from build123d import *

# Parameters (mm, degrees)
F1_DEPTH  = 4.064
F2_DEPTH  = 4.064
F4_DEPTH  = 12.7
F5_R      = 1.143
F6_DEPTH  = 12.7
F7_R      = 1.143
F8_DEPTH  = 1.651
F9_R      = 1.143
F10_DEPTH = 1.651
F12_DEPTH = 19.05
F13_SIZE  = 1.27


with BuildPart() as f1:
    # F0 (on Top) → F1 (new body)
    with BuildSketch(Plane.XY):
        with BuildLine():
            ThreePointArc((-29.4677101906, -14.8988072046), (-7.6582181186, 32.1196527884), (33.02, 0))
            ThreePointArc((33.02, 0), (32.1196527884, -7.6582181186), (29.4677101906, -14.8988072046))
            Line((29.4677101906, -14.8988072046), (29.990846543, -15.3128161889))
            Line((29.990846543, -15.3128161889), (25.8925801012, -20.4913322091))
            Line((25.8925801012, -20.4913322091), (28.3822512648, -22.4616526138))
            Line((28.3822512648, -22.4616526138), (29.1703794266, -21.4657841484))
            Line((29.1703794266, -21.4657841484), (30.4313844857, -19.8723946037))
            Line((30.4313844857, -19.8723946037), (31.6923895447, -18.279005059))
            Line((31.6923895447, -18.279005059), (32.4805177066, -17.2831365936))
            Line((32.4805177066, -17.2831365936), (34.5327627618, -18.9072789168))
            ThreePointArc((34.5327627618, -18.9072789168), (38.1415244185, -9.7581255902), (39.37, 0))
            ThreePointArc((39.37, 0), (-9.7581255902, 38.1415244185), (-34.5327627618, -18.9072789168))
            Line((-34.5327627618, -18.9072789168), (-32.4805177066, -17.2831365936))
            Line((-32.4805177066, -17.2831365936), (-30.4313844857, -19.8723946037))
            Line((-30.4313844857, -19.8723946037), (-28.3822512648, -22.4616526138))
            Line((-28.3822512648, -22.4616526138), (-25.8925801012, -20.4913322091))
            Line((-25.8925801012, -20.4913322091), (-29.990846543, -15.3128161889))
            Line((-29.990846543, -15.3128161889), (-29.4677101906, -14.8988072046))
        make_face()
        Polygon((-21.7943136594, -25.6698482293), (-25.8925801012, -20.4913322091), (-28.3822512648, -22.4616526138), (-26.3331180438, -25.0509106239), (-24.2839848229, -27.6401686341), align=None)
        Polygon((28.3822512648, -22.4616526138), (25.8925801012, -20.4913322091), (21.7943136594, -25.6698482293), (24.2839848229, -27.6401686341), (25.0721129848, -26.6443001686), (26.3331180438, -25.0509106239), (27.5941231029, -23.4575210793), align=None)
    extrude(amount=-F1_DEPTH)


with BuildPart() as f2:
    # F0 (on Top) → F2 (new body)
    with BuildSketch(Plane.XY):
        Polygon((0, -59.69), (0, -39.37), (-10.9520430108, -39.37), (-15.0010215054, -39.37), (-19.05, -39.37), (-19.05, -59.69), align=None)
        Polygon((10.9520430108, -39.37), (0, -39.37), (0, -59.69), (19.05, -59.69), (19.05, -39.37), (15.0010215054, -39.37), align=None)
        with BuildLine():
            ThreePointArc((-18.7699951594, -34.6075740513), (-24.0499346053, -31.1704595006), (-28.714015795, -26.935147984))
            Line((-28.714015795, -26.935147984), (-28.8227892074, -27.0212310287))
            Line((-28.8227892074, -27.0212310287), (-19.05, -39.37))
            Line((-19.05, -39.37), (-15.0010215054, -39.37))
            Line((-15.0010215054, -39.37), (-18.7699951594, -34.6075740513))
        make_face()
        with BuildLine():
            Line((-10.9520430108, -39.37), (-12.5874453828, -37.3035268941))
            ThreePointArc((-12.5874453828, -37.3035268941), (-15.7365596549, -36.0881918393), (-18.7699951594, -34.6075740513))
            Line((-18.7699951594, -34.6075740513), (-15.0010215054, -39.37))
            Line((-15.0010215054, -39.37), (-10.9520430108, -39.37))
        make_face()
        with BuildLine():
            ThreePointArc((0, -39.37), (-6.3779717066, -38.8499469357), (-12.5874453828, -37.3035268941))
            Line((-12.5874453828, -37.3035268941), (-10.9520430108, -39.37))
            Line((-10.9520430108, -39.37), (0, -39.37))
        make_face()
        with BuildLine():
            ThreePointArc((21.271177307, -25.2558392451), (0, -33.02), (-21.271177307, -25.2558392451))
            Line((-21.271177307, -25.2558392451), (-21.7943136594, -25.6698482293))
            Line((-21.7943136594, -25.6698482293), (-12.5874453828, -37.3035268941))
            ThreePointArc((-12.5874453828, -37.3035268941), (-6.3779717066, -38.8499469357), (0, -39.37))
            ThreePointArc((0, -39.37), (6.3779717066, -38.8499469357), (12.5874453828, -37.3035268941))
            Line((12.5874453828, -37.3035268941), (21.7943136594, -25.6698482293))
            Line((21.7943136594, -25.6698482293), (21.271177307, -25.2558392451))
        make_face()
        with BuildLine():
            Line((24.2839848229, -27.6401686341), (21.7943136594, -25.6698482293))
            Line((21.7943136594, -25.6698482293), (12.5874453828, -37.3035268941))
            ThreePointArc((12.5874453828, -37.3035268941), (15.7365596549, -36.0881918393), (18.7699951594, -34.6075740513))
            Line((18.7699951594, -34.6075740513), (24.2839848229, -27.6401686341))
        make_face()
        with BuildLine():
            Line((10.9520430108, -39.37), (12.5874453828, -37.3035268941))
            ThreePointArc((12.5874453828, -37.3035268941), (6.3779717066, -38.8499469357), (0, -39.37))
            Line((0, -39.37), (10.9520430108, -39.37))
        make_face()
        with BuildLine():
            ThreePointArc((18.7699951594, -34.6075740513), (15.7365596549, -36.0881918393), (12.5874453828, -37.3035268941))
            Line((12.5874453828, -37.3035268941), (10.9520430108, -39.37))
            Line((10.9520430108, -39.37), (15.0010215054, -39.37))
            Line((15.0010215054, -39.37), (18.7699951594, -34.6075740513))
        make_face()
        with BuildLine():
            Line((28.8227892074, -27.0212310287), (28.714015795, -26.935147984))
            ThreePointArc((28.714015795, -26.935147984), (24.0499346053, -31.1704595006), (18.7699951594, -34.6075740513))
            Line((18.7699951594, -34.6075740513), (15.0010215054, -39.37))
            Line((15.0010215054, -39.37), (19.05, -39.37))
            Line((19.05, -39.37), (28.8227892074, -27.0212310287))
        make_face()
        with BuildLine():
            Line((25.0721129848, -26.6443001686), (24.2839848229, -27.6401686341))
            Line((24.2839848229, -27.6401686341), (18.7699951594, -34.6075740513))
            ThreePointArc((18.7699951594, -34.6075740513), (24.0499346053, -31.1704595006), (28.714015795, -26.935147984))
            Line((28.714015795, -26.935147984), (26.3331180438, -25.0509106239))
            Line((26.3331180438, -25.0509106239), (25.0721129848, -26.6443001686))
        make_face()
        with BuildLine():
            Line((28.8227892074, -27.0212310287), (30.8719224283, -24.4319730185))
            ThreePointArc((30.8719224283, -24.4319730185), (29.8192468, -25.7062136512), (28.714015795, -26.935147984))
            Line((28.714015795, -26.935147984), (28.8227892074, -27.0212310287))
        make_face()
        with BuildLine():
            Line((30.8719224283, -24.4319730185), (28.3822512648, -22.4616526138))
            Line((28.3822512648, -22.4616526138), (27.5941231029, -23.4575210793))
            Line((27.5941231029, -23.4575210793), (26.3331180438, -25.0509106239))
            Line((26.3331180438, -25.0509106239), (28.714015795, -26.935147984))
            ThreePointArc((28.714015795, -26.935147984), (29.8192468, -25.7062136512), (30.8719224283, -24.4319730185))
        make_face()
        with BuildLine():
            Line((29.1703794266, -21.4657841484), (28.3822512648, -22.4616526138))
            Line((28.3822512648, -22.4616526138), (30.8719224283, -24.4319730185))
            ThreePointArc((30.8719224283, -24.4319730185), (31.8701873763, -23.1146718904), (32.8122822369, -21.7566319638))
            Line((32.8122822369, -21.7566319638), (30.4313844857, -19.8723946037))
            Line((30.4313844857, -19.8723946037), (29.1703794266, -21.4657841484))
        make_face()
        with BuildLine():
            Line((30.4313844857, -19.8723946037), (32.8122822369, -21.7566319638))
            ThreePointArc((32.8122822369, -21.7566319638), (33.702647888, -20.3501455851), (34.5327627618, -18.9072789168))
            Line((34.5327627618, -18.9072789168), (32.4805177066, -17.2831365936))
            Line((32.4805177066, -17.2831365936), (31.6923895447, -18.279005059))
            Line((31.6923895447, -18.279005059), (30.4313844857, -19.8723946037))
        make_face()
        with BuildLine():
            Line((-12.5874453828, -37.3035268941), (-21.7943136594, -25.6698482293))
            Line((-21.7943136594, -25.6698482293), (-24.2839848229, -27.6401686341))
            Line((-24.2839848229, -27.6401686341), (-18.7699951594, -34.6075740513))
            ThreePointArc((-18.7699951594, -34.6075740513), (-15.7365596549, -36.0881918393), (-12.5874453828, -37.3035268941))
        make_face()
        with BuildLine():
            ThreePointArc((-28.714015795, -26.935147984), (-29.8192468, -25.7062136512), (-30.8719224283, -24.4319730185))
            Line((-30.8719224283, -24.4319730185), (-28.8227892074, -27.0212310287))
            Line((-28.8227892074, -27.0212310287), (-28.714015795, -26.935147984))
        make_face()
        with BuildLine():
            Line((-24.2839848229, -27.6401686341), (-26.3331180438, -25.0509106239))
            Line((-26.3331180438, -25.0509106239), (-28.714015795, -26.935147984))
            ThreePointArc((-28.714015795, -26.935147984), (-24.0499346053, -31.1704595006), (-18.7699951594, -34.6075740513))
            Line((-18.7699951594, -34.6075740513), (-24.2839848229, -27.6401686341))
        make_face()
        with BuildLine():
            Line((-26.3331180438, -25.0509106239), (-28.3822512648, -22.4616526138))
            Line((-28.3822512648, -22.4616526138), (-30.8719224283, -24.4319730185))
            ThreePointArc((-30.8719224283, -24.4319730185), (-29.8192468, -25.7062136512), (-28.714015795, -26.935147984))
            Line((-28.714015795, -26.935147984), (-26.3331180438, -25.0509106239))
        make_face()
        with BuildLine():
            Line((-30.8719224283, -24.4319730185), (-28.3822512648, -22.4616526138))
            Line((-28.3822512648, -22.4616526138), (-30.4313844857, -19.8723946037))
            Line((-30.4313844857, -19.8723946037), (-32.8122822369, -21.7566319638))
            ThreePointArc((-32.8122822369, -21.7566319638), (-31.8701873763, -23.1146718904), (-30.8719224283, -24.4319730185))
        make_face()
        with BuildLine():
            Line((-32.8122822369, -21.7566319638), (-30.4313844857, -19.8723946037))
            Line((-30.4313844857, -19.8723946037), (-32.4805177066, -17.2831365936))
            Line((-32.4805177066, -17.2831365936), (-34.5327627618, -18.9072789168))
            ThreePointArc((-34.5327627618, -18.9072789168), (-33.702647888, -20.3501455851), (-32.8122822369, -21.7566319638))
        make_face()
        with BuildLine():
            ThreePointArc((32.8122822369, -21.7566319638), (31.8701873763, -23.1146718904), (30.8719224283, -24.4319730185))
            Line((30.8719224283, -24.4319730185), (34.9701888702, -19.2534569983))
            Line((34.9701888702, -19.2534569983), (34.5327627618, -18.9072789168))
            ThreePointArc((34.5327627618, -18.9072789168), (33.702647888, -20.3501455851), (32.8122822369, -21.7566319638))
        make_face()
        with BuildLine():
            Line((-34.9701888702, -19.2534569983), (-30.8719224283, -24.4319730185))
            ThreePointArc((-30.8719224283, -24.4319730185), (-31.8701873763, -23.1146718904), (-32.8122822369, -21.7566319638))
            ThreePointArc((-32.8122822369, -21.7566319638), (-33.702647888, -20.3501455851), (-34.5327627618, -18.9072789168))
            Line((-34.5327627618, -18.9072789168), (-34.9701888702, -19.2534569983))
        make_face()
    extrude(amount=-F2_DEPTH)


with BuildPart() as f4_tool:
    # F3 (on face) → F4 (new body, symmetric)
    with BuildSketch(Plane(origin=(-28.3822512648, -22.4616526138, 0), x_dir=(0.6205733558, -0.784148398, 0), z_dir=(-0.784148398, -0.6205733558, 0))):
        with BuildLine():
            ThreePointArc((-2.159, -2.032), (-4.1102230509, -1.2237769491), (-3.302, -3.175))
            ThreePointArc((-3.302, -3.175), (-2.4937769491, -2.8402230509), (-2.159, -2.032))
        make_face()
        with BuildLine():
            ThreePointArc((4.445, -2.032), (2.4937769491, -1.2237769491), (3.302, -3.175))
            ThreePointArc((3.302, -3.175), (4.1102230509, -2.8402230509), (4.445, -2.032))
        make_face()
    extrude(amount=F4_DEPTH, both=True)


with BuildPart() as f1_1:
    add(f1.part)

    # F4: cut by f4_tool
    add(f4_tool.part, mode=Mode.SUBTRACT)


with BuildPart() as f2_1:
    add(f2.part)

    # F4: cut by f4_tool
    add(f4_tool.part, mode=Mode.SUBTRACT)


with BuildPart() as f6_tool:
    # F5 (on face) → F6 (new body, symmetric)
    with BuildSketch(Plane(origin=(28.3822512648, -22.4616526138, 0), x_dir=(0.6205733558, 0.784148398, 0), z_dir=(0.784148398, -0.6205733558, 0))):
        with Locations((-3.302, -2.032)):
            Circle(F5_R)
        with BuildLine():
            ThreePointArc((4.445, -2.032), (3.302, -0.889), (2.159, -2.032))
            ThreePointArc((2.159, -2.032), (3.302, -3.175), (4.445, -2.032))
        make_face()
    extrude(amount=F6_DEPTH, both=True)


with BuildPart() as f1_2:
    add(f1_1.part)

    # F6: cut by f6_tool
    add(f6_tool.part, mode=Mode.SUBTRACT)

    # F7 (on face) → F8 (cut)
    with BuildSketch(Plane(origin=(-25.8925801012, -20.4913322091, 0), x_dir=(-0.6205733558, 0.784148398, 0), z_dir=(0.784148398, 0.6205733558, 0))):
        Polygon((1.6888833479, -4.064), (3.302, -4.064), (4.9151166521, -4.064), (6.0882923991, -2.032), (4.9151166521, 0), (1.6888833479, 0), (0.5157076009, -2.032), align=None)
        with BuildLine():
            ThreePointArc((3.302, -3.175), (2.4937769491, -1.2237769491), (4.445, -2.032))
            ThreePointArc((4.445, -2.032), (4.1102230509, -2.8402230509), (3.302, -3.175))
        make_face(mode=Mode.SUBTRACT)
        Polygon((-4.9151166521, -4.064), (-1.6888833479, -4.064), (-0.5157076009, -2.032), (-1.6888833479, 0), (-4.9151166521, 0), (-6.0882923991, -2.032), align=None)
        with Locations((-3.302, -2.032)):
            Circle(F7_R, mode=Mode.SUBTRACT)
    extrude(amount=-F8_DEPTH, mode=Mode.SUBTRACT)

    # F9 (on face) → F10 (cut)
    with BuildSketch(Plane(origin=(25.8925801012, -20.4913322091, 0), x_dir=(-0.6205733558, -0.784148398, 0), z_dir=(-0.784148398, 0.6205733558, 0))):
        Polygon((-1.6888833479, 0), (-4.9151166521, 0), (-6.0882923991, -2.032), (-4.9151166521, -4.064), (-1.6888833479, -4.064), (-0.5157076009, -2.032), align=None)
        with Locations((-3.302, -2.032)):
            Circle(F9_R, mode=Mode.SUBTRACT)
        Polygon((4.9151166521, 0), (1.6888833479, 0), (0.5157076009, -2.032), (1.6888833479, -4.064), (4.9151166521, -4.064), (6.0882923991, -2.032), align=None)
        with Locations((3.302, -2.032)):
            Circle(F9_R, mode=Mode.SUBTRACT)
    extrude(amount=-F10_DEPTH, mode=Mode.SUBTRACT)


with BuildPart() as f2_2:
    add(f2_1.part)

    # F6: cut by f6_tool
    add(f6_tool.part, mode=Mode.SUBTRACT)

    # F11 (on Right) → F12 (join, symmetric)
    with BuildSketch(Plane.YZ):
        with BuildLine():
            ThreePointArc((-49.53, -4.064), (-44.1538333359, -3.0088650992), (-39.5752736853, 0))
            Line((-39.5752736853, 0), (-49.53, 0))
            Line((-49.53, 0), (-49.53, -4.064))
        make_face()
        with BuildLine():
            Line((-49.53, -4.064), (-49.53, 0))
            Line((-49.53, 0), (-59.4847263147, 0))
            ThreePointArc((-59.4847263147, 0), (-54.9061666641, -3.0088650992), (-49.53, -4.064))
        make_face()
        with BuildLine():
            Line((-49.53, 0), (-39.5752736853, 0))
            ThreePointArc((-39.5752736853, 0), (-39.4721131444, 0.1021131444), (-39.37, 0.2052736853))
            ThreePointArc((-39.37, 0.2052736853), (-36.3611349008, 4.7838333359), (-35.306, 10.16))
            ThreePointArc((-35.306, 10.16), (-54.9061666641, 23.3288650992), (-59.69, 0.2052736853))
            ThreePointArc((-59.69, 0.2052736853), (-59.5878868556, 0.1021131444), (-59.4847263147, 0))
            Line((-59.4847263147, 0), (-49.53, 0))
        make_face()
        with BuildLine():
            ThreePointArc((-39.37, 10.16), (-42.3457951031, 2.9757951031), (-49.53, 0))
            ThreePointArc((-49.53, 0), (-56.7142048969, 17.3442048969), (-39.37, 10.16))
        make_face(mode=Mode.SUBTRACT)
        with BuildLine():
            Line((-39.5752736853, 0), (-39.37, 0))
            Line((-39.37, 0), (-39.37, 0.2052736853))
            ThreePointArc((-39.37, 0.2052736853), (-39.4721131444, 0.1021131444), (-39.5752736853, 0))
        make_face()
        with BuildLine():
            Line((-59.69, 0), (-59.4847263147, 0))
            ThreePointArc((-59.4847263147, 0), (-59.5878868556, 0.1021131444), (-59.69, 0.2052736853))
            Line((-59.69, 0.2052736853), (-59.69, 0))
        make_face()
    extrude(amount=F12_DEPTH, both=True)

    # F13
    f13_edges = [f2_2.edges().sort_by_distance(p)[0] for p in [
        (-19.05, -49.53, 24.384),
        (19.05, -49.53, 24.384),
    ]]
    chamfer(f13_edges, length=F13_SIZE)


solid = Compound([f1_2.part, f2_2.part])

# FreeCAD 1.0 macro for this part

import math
import FreeCAD as App
import Part
import Sketcher
from FreeCAD import Vector
Q = App.Units.Quantity


def edges_at(feature, points):
    """Names of the edges that pass closest to the given points."""
    edges = feature.Shape.Edges
    near = lambda p: min(range(len(edges)), key=lambda i: edges[i].distToShape(Part.Vertex(*p))[0])
    return sorted({f"Edge{near(p) + 1}" for p in points})

doc = App.newDocument("Part")
body = doc.addObject("PartDesign::Body", "Body")

# Sketch on XY plane
sketch1 = body.newObject("Sketcher::SketchObject", "Sketch")
sketch1.AttachmentSupport = (doc.getObject("XY_Plane"), [""])
sketch1.MapMode = "FlatFace"
sketch1.addGeometry(Part.LineSegment(Vector(-30, -15.3, 0), Vector(-29.5, -14.9, 0)), False)
sketch1.addGeometry(Part.ArcOfCircle(Part.Circle(Vector(0, 0, 0), Vector(0, 0, 1), 33), math.radians(0), math.radians(207)), False)
sketch1.addGeometry(Part.ArcOfCircle(Part.Circle(Vector(0, 0, 0), Vector(0, 0, 1), 33), math.radians(-27), math.radians(0)), False)
sketch1.addGeometry(Part.LineSegment(Vector(29.5, -14.9, 0), Vector(30, -15.3, 0)), False)
sketch1.addGeometry(Part.LineSegment(Vector(30, -15.3, 0), Vector(21.8, -25.7, 0)), False)
sketch1.addGeometry(Part.LineSegment(Vector(21.8, -25.7, 0), Vector(24.3, -27.6, 0)), False)
sketch1.addGeometry(Part.LineSegment(Vector(24.3, -27.6, 0), Vector(25.1, -26.6, 0)), False)
sketch1.addGeometry(Part.LineSegment(Vector(25.1, -26.6, 0), Vector(26.3, -25.1, 0)), False)
sketch1.addGeometry(Part.LineSegment(Vector(26.3, -25.1, 0), Vector(27.6, -23.5, 0)), False)
sketch1.addGeometry(Part.LineSegment(Vector(27.6, -23.5, 0), Vector(28.4, -22.5, 0)), False)
sketch1.addGeometry(Part.LineSegment(Vector(28.4, -22.5, 0), Vector(29.2, -21.5, 0)), False)
sketch1.addGeometry(Part.LineSegment(Vector(29.2, -21.5, 0), Vector(30.4, -19.9, 0)), False)
sketch1.addGeometry(Part.LineSegment(Vector(30.4, -19.9, 0), Vector(31.7, -18.3, 0)), False)
sketch1.addGeometry(Part.LineSegment(Vector(31.7, -18.3, 0), Vector(32.5, -17.3, 0)), False)
sketch1.addGeometry(Part.LineSegment(Vector(32.5, -17.3, 0), Vector(34.5, -18.9, 0)), False)
sketch1.addGeometry(Part.ArcOfCircle(Part.Circle(Vector(0, 0, 0), Vector(0, 0, 1), 39.4), math.radians(-29), math.radians(0)), False)
sketch1.addGeometry(Part.ArcOfCircle(Part.Circle(Vector(0, 0, 0), Vector(0, 0, 1), 39.4), math.radians(0), math.radians(209)), False)
sketch1.addGeometry(Part.LineSegment(Vector(-34.5, -18.9, 0), Vector(-32.5, -17.3, 0)), False)
sketch1.addGeometry(Part.LineSegment(Vector(-32.5, -17.3, 0), Vector(-28.4, -22.5, 0)), False)
sketch1.addGeometry(Part.LineSegment(Vector(-28.4, -22.5, 0), Vector(-26.3, -25.1, 0)), False)
sketch1.addGeometry(Part.LineSegment(Vector(-26.3, -25.1, 0), Vector(-24.3, -27.6, 0)), False)
sketch1.addGeometry(Part.LineSegment(Vector(-24.3, -27.6, 0), Vector(-21.8, -25.7, 0)), False)
sketch1.addGeometry(Part.LineSegment(Vector(-21.8, -25.7, 0), Vector(-30, -15.3, 0)), False)
sketch1.addConstraint(Sketcher.Constraint("Coincident", 0, 2, 1, 2))
sketch1.addConstraint(Sketcher.Constraint("Tangent", 1, 1, 2, 2))
sketch1.addConstraint(Sketcher.Constraint("Coincident", 2, 1, 3, 1))
sketch1.addConstraint(Sketcher.Constraint("Coincident", 3, 2, 4, 1))
sketch1.addConstraint(Sketcher.Constraint("Coincident", 4, 2, 5, 1))
sketch1.addConstraint(Sketcher.Constraint("Coincident", 5, 2, 6, 1))
sketch1.addConstraint(Sketcher.Constraint("Coincident", 6, 2, 7, 1))
sketch1.addConstraint(Sketcher.Constraint("Coincident", 7, 2, 8, 1))
sketch1.addConstraint(Sketcher.Constraint("Coincident", 8, 2, 9, 1))
sketch1.addConstraint(Sketcher.Constraint("Coincident", 9, 2, 10, 1))
sketch1.addConstraint(Sketcher.Constraint("Coincident", 10, 2, 11, 1))
sketch1.addConstraint(Sketcher.Constraint("Coincident", 11, 2, 12, 1))
sketch1.addConstraint(Sketcher.Constraint("Coincident", 12, 2, 13, 1))
sketch1.addConstraint(Sketcher.Constraint("Coincident", 13, 2, 14, 1))
sketch1.addConstraint(Sketcher.Constraint("Coincident", 14, 2, 15, 1))
sketch1.addConstraint(Sketcher.Constraint("Tangent", 15, 2, 16, 1))
sketch1.addConstraint(Sketcher.Constraint("Coincident", 16, 2, 17, 1))
sketch1.addConstraint(Sketcher.Constraint("Coincident", 17, 2, 18, 1))
sketch1.addConstraint(Sketcher.Constraint("Coincident", 18, 2, 19, 1))
sketch1.addConstraint(Sketcher.Constraint("Coincident", 19, 2, 20, 1))
sketch1.addConstraint(Sketcher.Constraint("Coincident", 20, 2, 21, 1))
sketch1.addConstraint(Sketcher.Constraint("Coincident", 21, 2, 22, 1))
sketch1.addConstraint(Sketcher.Constraint("Coincident", 22, 2, 0, 1))
sketch1.addConstraint(Sketcher.Constraint("Coincident", 1, 3, -1, 1))
sketch1.addConstraint(Sketcher.Constraint("Coincident", 15, 3, -1, 1))
sketch1.addConstraint(Sketcher.Constraint("Equal", 1, 2))
sketch1.addConstraint(Sketcher.Constraint("Equal", 15, 16))
sketch1.addConstraint(Sketcher.Constraint("Symmetric", 13, 2, 17, 2, -2))
sketch1.addConstraint(Sketcher.Constraint("Symmetric", 9, 2, 18, 2, -2))
sketch1.addConstraint(Sketcher.Constraint("Symmetric", 7, 2, 19, 2, -2))
sketch1.addConstraint(Sketcher.Constraint("Symmetric", 5, 2, 20, 2, -2))
sketch1.addConstraint(Sketcher.Constraint("Symmetric", 4, 2, 21, 2, -2))
sketch1.addConstraint(Sketcher.Constraint("Symmetric", 3, 2, 22, 2, -2))
sketch1.addConstraint(Sketcher.Constraint("PointOnObject", 1, 1, -1))
sketch1.addConstraint(Sketcher.Constraint("PointOnObject", 15, 2, -1))
sketch1.addConstraint(Sketcher.Constraint("Perpendicular", 3, 4))
sketch1.addConstraint(Sketcher.Constraint("Perpendicular", 4, 5))
sketch1.addConstraint(Sketcher.Constraint("Perpendicular", 5, 6))
sketch1.addConstraint(Sketcher.Constraint("Parallel", 6, 7))
sketch1.addConstraint(Sketcher.Constraint("Parallel", 7, 8))
sketch1.addConstraint(Sketcher.Constraint("Parallel", 8, 9))
sketch1.addConstraint(Sketcher.Constraint("Parallel", 9, 10))
sketch1.addConstraint(Sketcher.Constraint("Parallel", 10, 11))
sketch1.addConstraint(Sketcher.Constraint("Parallel", 11, 12))
sketch1.addConstraint(Sketcher.Constraint("Parallel", 12, 13))
sketch1.addConstraint(Sketcher.Constraint("Perpendicular", 13, 14))
sketch1.addConstraint(Sketcher.Constraint("Parallel", 0, 17))
sketch1.addConstraint(Sketcher.Constraint("Perpendicular", 17, 18))
sketch1.addConstraint(Sketcher.Constraint("Equal", 7, 8))
sketch1.addConstraint(Sketcher.Constraint("Equal", 6, 9))
sketch1.addConstraint(Sketcher.Constraint("Equal", 9, 10))
sketch1.addConstraint(Sketcher.Constraint("Equal", 8, 11))
sketch1.addConstraint(Sketcher.Constraint("Equal", 11, 12))
sketch1.addConstraint(Sketcher.Constraint("Equal", 10, 13))
sketch1.addConstraint(Sketcher.Constraint("Radius", 1, Q("1.3 in")))
sketch1.addConstraint(Sketcher.Constraint("Radius", 15, Q("1.55 in")))
sketch1.addConstraint(Sketcher.Constraint("Distance", 4, Q("0.52 in")))
sketch1.addConstraint(Sketcher.Constraint("Distance", 6, Q("0.05 in")))
sketch1.addConstraint(Sketcher.Constraint("Distance", 7, Q("0.08 in")))
sketch1.addConstraint(Sketcher.Constraint("Distance", 5, Q("0.125 in")))
sketch1.addConstraint(Sketcher.Constraint("DistanceY", 6, 2, -1, 1, Q("26.6443 mm")))
sketch1.addConstraint(Sketcher.Constraint("DistanceX", 4, 2, 6, 2, Q("3.277799 mm")))
sketch1.addConstraint(Sketcher.Constraint("Distance", 0, Q("0.667139 mm")))
pad1 = body.newObject("PartDesign::Pad", "Pad")
pad1.Profile = sketch1
pad1.Length = Q("0.16 in")
pad1.Reversed = True
body2 = doc.addObject("PartDesign::Body", "Body001")

# Sketch on XY plane
sketch2 = body2.newObject("Sketcher::SketchObject", "Sketch001")
sketch2.AttachmentSupport = (doc.getObject("XY_Plane001"), [""])
sketch2.MapMode = "FlatFace"
sketch2.addGeometry(Part.LineSegment(Vector(-28.8, -27, 0), Vector(-19.1, -39.4, 0)), False)
sketch2.addGeometry(Part.LineSegment(Vector(-19.1, -39.4, 0), Vector(-19.1, -59.7, 0)), False)
sketch2.addGeometry(Part.LineSegment(Vector(-19.1, -59.7, 0), Vector(19.1, -59.7, 0)), False)
sketch2.addGeometry(Part.LineSegment(Vector(19.1, -59.7, 0), Vector(19.1, -39.4, 0)), False)
sketch2.addGeometry(Part.LineSegment(Vector(19.1, -39.4, 0), Vector(28.8, -27, 0)), False)
sketch2.addGeometry(Part.LineSegment(Vector(28.8, -27, 0), Vector(30.9, -24.4, 0)), False)
sketch2.addGeometry(Part.LineSegment(Vector(30.9, -24.4, 0), Vector(35, -19.3, 0)), False)
sketch2.addGeometry(Part.LineSegment(Vector(35, -19.3, 0), Vector(34.5, -18.9, 0)), False)
sketch2.addGeometry(Part.LineSegment(Vector(34.5, -18.9, 0), Vector(32.5, -17.3, 0)), False)
sketch2.addGeometry(Part.LineSegment(Vector(32.5, -17.3, 0), Vector(31.7, -18.3, 0)), False)
sketch2.addGeometry(Part.LineSegment(Vector(31.7, -18.3, 0), Vector(30.4, -19.9, 0)), False)
sketch2.addGeometry(Part.LineSegment(Vector(30.4, -19.9, 0), Vector(29.2, -21.5, 0)), False)
sketch2.addGeometry(Part.LineSegment(Vector(29.2, -21.5, 0), Vector(28.4, -22.5, 0)), False)
sketch2.addGeometry(Part.LineSegment(Vector(28.4, -22.5, 0), Vector(27.6, -23.5, 0)), False)
sketch2.addGeometry(Part.LineSegment(Vector(27.6, -23.5, 0), Vector(26.3, -25.1, 0)), False)
sketch2.addGeometry(Part.LineSegment(Vector(26.3, -25.1, 0), Vector(25.1, -26.6, 0)), False)
sketch2.addGeometry(Part.LineSegment(Vector(25.1, -26.6, 0), Vector(24.3, -27.6, 0)), False)
sketch2.addGeometry(Part.LineSegment(Vector(24.3, -27.6, 0), Vector(21.8, -25.7, 0)), False)
sketch2.addGeometry(Part.LineSegment(Vector(21.8, -25.7, 0), Vector(21.3, -25.3, 0)), False)
sketch2.addGeometry(Part.ArcOfCircle(Part.Circle(Vector(0, 0, 0), Vector(0, 0, 1), 33), math.radians(-130), math.radians(-50)), False)
sketch2.addGeometry(Part.LineSegment(Vector(-21.3, -25.3, 0), Vector(-21.8, -25.7, 0)), False)
sketch2.addGeometry(Part.LineSegment(Vector(-21.8, -25.7, 0), Vector(-24.3, -27.6, 0)), False)
sketch2.addGeometry(Part.LineSegment(Vector(-24.3, -27.6, 0), Vector(-26.3, -25.1, 0)), False)
sketch2.addGeometry(Part.LineSegment(Vector(-26.3, -25.1, 0), Vector(-28.4, -22.5, 0)), False)
sketch2.addGeometry(Part.LineSegment(Vector(-28.4, -22.5, 0), Vector(-32.5, -17.3, 0)), False)
sketch2.addGeometry(Part.LineSegment(Vector(-32.5, -17.3, 0), Vector(-34.5, -18.9, 0)), False)
sketch2.addGeometry(Part.LineSegment(Vector(-34.5, -18.9, 0), Vector(-35, -19.3, 0)), False)
sketch2.addGeometry(Part.LineSegment(Vector(-35, -19.3, 0), Vector(-30.9, -24.4, 0)), False)
sketch2.addGeometry(Part.LineSegment(Vector(-30.9, -24.4, 0), Vector(-28.8, -27, 0)), False)
sketch2.addConstraint(Sketcher.Constraint("Coincident", 0, 2, 1, 1))
sketch2.addConstraint(Sketcher.Constraint("Coincident", 1, 2, 2, 1))
sketch2.addConstraint(Sketcher.Constraint("Coincident", 2, 2, 3, 1))
sketch2.addConstraint(Sketcher.Constraint("Coincident", 3, 2, 4, 1))
sketch2.addConstraint(Sketcher.Constraint("Coincident", 4, 2, 5, 1))
sketch2.addConstraint(Sketcher.Constraint("Coincident", 5, 2, 6, 1))
sketch2.addConstraint(Sketcher.Constraint("Coincident", 6, 2, 7, 1))
sketch2.addConstraint(Sketcher.Constraint("Coincident", 7, 2, 8, 1))
sketch2.addConstraint(Sketcher.Constraint("Coincident", 8, 2, 9, 1))
sketch2.addConstraint(Sketcher.Constraint("Coincident", 9, 2, 10, 1))
sketch2.addConstraint(Sketcher.Constraint("Coincident", 10, 2, 11, 1))
sketch2.addConstraint(Sketcher.Constraint("Coincident", 11, 2, 12, 1))
sketch2.addConstraint(Sketcher.Constraint("Coincident", 12, 2, 13, 1))
sketch2.addConstraint(Sketcher.Constraint("Coincident", 13, 2, 14, 1))
sketch2.addConstraint(Sketcher.Constraint("Coincident", 14, 2, 15, 1))
sketch2.addConstraint(Sketcher.Constraint("Coincident", 15, 2, 16, 1))
sketch2.addConstraint(Sketcher.Constraint("Coincident", 16, 2, 17, 1))
sketch2.addConstraint(Sketcher.Constraint("Coincident", 17, 2, 18, 1))
sketch2.addConstraint(Sketcher.Constraint("Coincident", 18, 2, 19, 2))
sketch2.addConstraint(Sketcher.Constraint("Coincident", 19, 1, 20, 1))
sketch2.addConstraint(Sketcher.Constraint("Coincident", 20, 2, 21, 1))
sketch2.addConstraint(Sketcher.Constraint("Coincident", 21, 2, 22, 1))
sketch2.addConstraint(Sketcher.Constraint("Coincident", 22, 2, 23, 1))
sketch2.addConstraint(Sketcher.Constraint("Coincident", 23, 2, 24, 1))
sketch2.addConstraint(Sketcher.Constraint("Coincident", 24, 2, 25, 1))
sketch2.addConstraint(Sketcher.Constraint("Coincident", 25, 2, 26, 1))
sketch2.addConstraint(Sketcher.Constraint("Coincident", 26, 2, 27, 1))
sketch2.addConstraint(Sketcher.Constraint("Coincident", 27, 2, 28, 1))
sketch2.addConstraint(Sketcher.Constraint("Coincident", 28, 2, 0, 1))
sketch2.addConstraint(Sketcher.Constraint("Vertical", 1))
sketch2.addConstraint(Sketcher.Constraint("Horizontal", 2))
sketch2.addConstraint(Sketcher.Constraint("Vertical", 3))
sketch2.addConstraint(Sketcher.Constraint("Coincident", 19, 3, -1, 1))
sketch2.addConstraint(Sketcher.Constraint("Symmetric", 0, 2, 3, 2, -2))
sketch2.addConstraint(Sketcher.Constraint("Symmetric", 17, 2, 20, 2, -2))
sketch2.addConstraint(Sketcher.Constraint("Symmetric", 16, 2, 21, 2, -2))
sketch2.addConstraint(Sketcher.Constraint("Symmetric", 14, 2, 22, 2, -2))
sketch2.addConstraint(Sketcher.Constraint("Symmetric", 12, 2, 23, 2, -2))
sketch2.addConstraint(Sketcher.Constraint("Symmetric", 8, 2, 24, 2, -2))
sketch2.addConstraint(Sketcher.Constraint("Symmetric", 7, 2, 25, 2, -2))
sketch2.addConstraint(Sketcher.Constraint("Symmetric", 6, 2, 26, 2, -2))
sketch2.addConstraint(Sketcher.Constraint("Symmetric", 5, 2, 27, 2, -2))
sketch2.addConstraint(Sketcher.Constraint("Symmetric", 4, 2, 28, 2, -2))
sketch2.addConstraint(Sketcher.Constraint("Parallel", 4, 5))
sketch2.addConstraint(Sketcher.Constraint("Parallel", 5, 6))
sketch2.addConstraint(Sketcher.Constraint("Perpendicular", 6, 7))
sketch2.addConstraint(Sketcher.Constraint("Parallel", 7, 8))
sketch2.addConstraint(Sketcher.Constraint("Perpendicular", 8, 9))
sketch2.addConstraint(Sketcher.Constraint("Parallel", 9, 10))
sketch2.addConstraint(Sketcher.Constraint("Parallel", 10, 11))
sketch2.addConstraint(Sketcher.Constraint("Parallel", 11, 12))
sketch2.addConstraint(Sketcher.Constraint("Parallel", 12, 13))
sketch2.addConstraint(Sketcher.Constraint("Parallel", 13, 14))
sketch2.addConstraint(Sketcher.Constraint("Parallel", 14, 15))
sketch2.addConstraint(Sketcher.Constraint("Parallel", 15, 16))
sketch2.addConstraint(Sketcher.Constraint("Perpendicular", 16, 17))
sketch2.addConstraint(Sketcher.Constraint("Parallel", 17, 18))
sketch2.addConstraint(Sketcher.Constraint("Perpendicular", 0, 20))
sketch2.addConstraint(Sketcher.Constraint("Equal", 10, 11))
sketch2.addConstraint(Sketcher.Constraint("Equal", 9, 12))
sketch2.addConstraint(Sketcher.Constraint("Equal", 12, 13))
sketch2.addConstraint(Sketcher.Constraint("Equal", 11, 14))
sketch2.addConstraint(Sketcher.Constraint("Equal", 14, 15))
sketch2.addConstraint(Sketcher.Constraint("Equal", 13, 16))
sketch2.addConstraint(Sketcher.Constraint("Equal", 5, 22))
sketch2.addConstraint(Sketcher.Constraint("Equal", 6, 24))
sketch2.addConstraint(Sketcher.Constraint("Radius", 19, Q("1.3 in")))
sketch2.addConstraint(Sketcher.Constraint("DistanceX", 2, 1, 2, 2, Q("1.5 in")))
sketch2.addConstraint(Sketcher.Constraint("DistanceY", 1, 2, 1, 1, Q("0.8 in")))
sketch2.addConstraint(Sketcher.Constraint("Distance", 0, Q("0.62 in")))
sketch2.addConstraint(Sketcher.Constraint("Distance", 5, Q("0.13 in")))
sketch2.addConstraint(Sketcher.Constraint("Distance", 9, Q("0.05 in")))
sketch2.addConstraint(Sketcher.Constraint("DistanceY", 0, 2, -1, 1, Q("1.55 in")))
sketch2.addConstraint(Sketcher.Constraint("Distance", 17, Q("0.125 in")))
sketch2.addConstraint(Sketcher.Constraint("DistanceY", 18, 2, 13, 2, Q("0.0707999 in")))
sketch2.addConstraint(Sketcher.Constraint("DistanceY", 15, 2, -1, 1, Q("26.6443 mm")))
sketch2.addConstraint(Sketcher.Constraint("DistanceY", 7, 2, -1, 1, Q("18.907279 mm")))
pad2 = body2.newObject("PartDesign::Pad", "Pad001")
pad2.Profile = sketch2
pad2.Length = Q("0.16 in")
pad2.Reversed = True
body3 = doc.addObject("PartDesign::Body", "Body002")
body3.AllowCompound = True

# Sketch on an angled plane
sketch3 = body3.newObject("Sketcher::SketchObject", "Sketch002")
sketch3.Placement = App.Placement(Vector(-28.382251, -22.461653, 0), App.Rotation(Vector(0.620573356, -0.784148398, 0), Vector(0, 0, 1), Vector(-0.784148398, -0.620573356, 0), "ZXY"))
sketch3.addGeometry(Part.ArcOfCircle(Part.Circle(Vector(-3.3, -2, 0), Vector(0, 0, 1), 1.1), math.radians(0), math.radians(270)), False)
sketch3.addGeometry(Part.ArcOfCircle(Part.Circle(Vector(-3.3, -2, 0), Vector(0, 0, 1), 1.1), math.radians(-90), math.radians(0)), False)
sketch3.addGeometry(Part.ArcOfCircle(Part.Circle(Vector(3.3, -2, 0), Vector(0, 0, 1), 1.1), math.radians(0), math.radians(270)), False)
sketch3.addGeometry(Part.ArcOfCircle(Part.Circle(Vector(3.3, -2, 0), Vector(0, 0, 1), 1.1), math.radians(-90), math.radians(0)), False)
sketch3.addConstraint(Sketcher.Constraint("Tangent", 0, 1, 1, 2))
sketch3.addConstraint(Sketcher.Constraint("Coincident", 1, 1, 0, 2))
sketch3.addConstraint(Sketcher.Constraint("Tangent", 2, 1, 3, 2))
sketch3.addConstraint(Sketcher.Constraint("Coincident", 3, 1, 2, 2))
sketch3.addConstraint(Sketcher.Constraint("Equal", 1, 2))
sketch3.addConstraint(Sketcher.Constraint("Symmetric", 0, 3, 2, 3, -2))
sketch3.addConstraint(Sketcher.Constraint("Horizontal", 3, 3, 0, 1))
sketch3.addConstraint(Sketcher.Constraint("Horizontal", 0, 1, 2, 1))
sketch3.addConstraint(Sketcher.Constraint("Vertical", 0, 3, 1, 1))
sketch3.addConstraint(Sketcher.Constraint("Vertical", 2, 3, 3, 1))
sketch3.addConstraint(Sketcher.Constraint("Radius", 0, Q("0.045 in")))
sketch3.addConstraint(Sketcher.Constraint("DistanceX", 0, 3, -1, 1, Q("0.13 in")))
sketch3.addConstraint(Sketcher.Constraint("DistanceY", 0, 3, -1, 1, Q("0.08 in")))
pad3 = body3.newObject("PartDesign::Pad", "Pad002")
pad3.Profile = sketch3
pad3.Length = Q("1 in")
pad3.Midplane = True
doc.recompute()

body4 = doc.addObject("PartDesign::Body", "Body003")
body4.BaseFeature = body3
boolean = body.newObject("PartDesign::Boolean", "Boolean")
boolean.Type = "Cut"
boolean.addObjects([body4])
doc.recompute()

boolean2 = body2.newObject("PartDesign::Boolean", "Boolean001")
boolean2.Type = "Cut"
boolean2.addObjects([body3])
body5 = doc.addObject("PartDesign::Body", "Body004")
body5.AllowCompound = True

# Sketch on an angled plane
sketch4 = body5.newObject("Sketcher::SketchObject", "Sketch003")
sketch4.Placement = App.Placement(Vector(28.382251, -22.461653, 0), App.Rotation(Vector(0.620573356, 0.784148398, 0), Vector(0, 0, 1), Vector(0.784148398, -0.620573356, 0), "ZXY"))
sketch4.addGeometry(Part.Circle(Vector(-3.3, -2, 0), Vector(0, 0, 1), 1.1), False)
sketch4.addGeometry(Part.Circle(Vector(3.3, -2, 0), Vector(0, 0, 1), 1.1), False)
sketch4.addConstraint(Sketcher.Constraint("Equal", 0, 1))
sketch4.addConstraint(Sketcher.Constraint("Symmetric", 0, 3, 1, 3, -2))
sketch4.addConstraint(Sketcher.Constraint("Diameter", 0, Q("0.09 in")))
sketch4.addConstraint(Sketcher.Constraint("DistanceX", 0, 3, -1, 1, Q("0.13 in")))
sketch4.addConstraint(Sketcher.Constraint("DistanceY", 0, 3, -1, 1, Q("0.08 in")))
pad4 = body5.newObject("PartDesign::Pad", "Pad003")
pad4.Profile = sketch4
pad4.Length = Q("1 in")
pad4.Midplane = True
doc.recompute()

body6 = doc.addObject("PartDesign::Body", "Body005")
body6.BaseFeature = body5
boolean3 = body.newObject("PartDesign::Boolean", "Boolean002")
boolean3.Type = "Cut"
boolean3.addObjects([body6])
doc.recompute()

# Sketch on an angled plane
sketch5 = body.newObject("Sketcher::SketchObject", "Sketch004")
sketch5.Placement = App.Placement(Vector(-25.89258, -20.491332, 0), App.Rotation(Vector(-0.620573356, 0.784148398, 0), Vector(0, 0, 1), Vector(0.784148398, 0.620573356, 0), "ZXY"))
sketch5.addGeometry(Part.LineSegment(Vector(1.7, -4.1, 0), Vector(4.9, -4.1, 0)), False)
sketch5.addGeometry(Part.LineSegment(Vector(4.9, -4.1, 0), Vector(6.1, -2, 0)), False)
sketch5.addGeometry(Part.LineSegment(Vector(6.1, -2, 0), Vector(4.9, 0, 0)), False)
sketch5.addGeometry(Part.LineSegment(Vector(4.9, 0, 0), Vector(1.7, 0, 0)), False)
sketch5.addGeometry(Part.LineSegment(Vector(1.7, 0, 0), Vector(0.5, -2, 0)), False)
sketch5.addGeometry(Part.LineSegment(Vector(0.5, -2, 0), Vector(1.7, -4.1, 0)), False)
sketch5.addGeometry(Part.ArcOfCircle(Part.Circle(Vector(3.3, -2, 0), Vector(0, 0, 1), 1.1), math.radians(-90), math.radians(0)), False)
sketch5.addGeometry(Part.ArcOfCircle(Part.Circle(Vector(3.3, -2, 0), Vector(0, 0, 1), 1.1), math.radians(0), math.radians(270)), False)
sketch5.addGeometry(Part.LineSegment(Vector(-4.9, -4.1, 0), Vector(-1.7, -4.1, 0)), False)
sketch5.addGeometry(Part.LineSegment(Vector(-1.7, -4.1, 0), Vector(-0.5, -2, 0)), False)
sketch5.addGeometry(Part.LineSegment(Vector(-0.5, -2, 0), Vector(-1.7, 0, 0)), False)
sketch5.addGeometry(Part.LineSegment(Vector(-1.7, 0, 0), Vector(-4.9, 0, 0)), False)
sketch5.addGeometry(Part.LineSegment(Vector(-4.9, 0, 0), Vector(-6.1, -2, 0)), False)
sketch5.addGeometry(Part.LineSegment(Vector(-6.1, -2, 0), Vector(-4.9, -4.1, 0)), False)
sketch5.addGeometry(Part.Circle(Vector(-3.3, -2, 0), Vector(0, 0, 1), 1.1), False)
sketch5.addConstraint(Sketcher.Constraint("Coincident", 0, 2, 1, 1))
sketch5.addConstraint(Sketcher.Constraint("Coincident", 1, 2, 2, 1))
sketch5.addConstraint(Sketcher.Constraint("Coincident", 2, 2, 3, 1))
sketch5.addConstraint(Sketcher.Constraint("Coincident", 3, 2, 4, 1))
sketch5.addConstraint(Sketcher.Constraint("Coincident", 4, 2, 5, 1))
sketch5.addConstraint(Sketcher.Constraint("Coincident", 5, 2, 0, 1))
sketch5.addConstraint(Sketcher.Constraint("Tangent", 6, 1, 7, 2))
sketch5.addConstraint(Sketcher.Constraint("Coincident", 7, 1, 6, 2))
sketch5.addConstraint(Sketcher.Constraint("Coincident", 8, 2, 9, 1))
sketch5.addConstraint(Sketcher.Constraint("Coincident", 9, 2, 10, 1))
sketch5.addConstraint(Sketcher.Constraint("Coincident", 10, 2, 11, 1))
sketch5.addConstraint(Sketcher.Constraint("Coincident", 11, 2, 12, 1))
sketch5.addConstraint(Sketcher.Constraint("Coincident", 12, 2, 13, 1))
sketch5.addConstraint(Sketcher.Constraint("Coincident", 13, 2, 8, 1))
sketch5.addConstraint(Sketcher.Constraint("Horizontal", 0))
sketch5.addConstraint(Sketcher.Constraint("Horizontal", 3))
sketch5.addConstraint(Sketcher.Constraint("Horizontal", 8))
sketch5.addConstraint(Sketcher.Constraint("Horizontal", 11))
sketch5.addConstraint(Sketcher.Constraint("Equal", 7, 14))
sketch5.addConstraint(Sketcher.Constraint("Symmetric", 3, 2, 10, 2, -1, 1))
sketch5.addConstraint(Sketcher.Constraint("Symmetric", 6, 3, 14, 3, -2))
sketch5.addConstraint(Sketcher.Constraint("Symmetric", 5, 2, 8, 2, -2))
sketch5.addConstraint(Sketcher.Constraint("Symmetric", 4, 2, 9, 2, -2))
sketch5.addConstraint(Sketcher.Constraint("Symmetric", 2, 2, 11, 2, -2))
sketch5.addConstraint(Sketcher.Constraint("Symmetric", 1, 2, 12, 2, -2))
sketch5.addConstraint(Sketcher.Constraint("Parallel", 1, 4))
sketch5.addConstraint(Sketcher.Constraint("Parallel", 2, 5))
sketch5.addConstraint(Sketcher.Constraint("Parallel", 4, 9))
sketch5.addConstraint(Sketcher.Constraint("Parallel", 10, 13))
sketch5.addConstraint(Sketcher.Constraint("Horizontal", 14, 3, 1, 2))
sketch5.addConstraint(Sketcher.Constraint("Horizontal", 1, 2, 4, 2))
sketch5.addConstraint(Sketcher.Constraint("Horizontal", 4, 2, 7, 1))
sketch5.addConstraint(Sketcher.Constraint("Vertical", 0, 2, 2, 2))
sketch5.addConstraint(Sketcher.Constraint("Vertical", 7, 3, 6, 1))
sketch5.addConstraint(Sketcher.Constraint("Diameter", 14, Q("0.09 in")))
sketch5.addConstraint(Sketcher.Constraint("Angle", 1, Q("60 deg")))
sketch5.addConstraint(Sketcher.Constraint("DistanceX", -1, 1, 6, 3, Q("0.13 in")))
sketch5.addConstraint(Sketcher.Constraint("DistanceY", 6, 3, -1, 1, Q("0.08 in")))
sketch5.addConstraint(Sketcher.Constraint("DistanceX", 0, 1, 0, 2, Q("3.226233 mm")))
sketch5.addConstraint(Sketcher.Constraint("DistanceX", 8, 2, 4, 2, Q("2.204591 mm")))
pocket1 = body.newObject("PartDesign::Pocket", "Pocket")
pocket1.Profile = sketch5
pocket1.Length = Q("0.065 in")

# Sketch on an angled plane
sketch6 = body.newObject("Sketcher::SketchObject", "Sketch005")
sketch6.Placement = App.Placement(Vector(25.89258, -20.491332, 0), App.Rotation(Vector(-0.620573356, -0.784148398, 0), Vector(0, 0, 1), Vector(-0.784148398, 0.620573356, 0), "ZXY"))
sketch6.addGeometry(Part.LineSegment(Vector(-1.7, 0, 0), Vector(-4.9, 0, 0)), False)
sketch6.addGeometry(Part.LineSegment(Vector(-4.9, 0, 0), Vector(-6.1, -2, 0)), False)
sketch6.addGeometry(Part.LineSegment(Vector(-6.1, -2, 0), Vector(-4.9, -4.1, 0)), False)
sketch6.addGeometry(Part.LineSegment(Vector(-4.9, -4.1, 0), Vector(-1.7, -4.1, 0)), False)
sketch6.addGeometry(Part.LineSegment(Vector(-1.7, -4.1, 0), Vector(-0.5, -2, 0)), False)
sketch6.addGeometry(Part.LineSegment(Vector(-0.5, -2, 0), Vector(-1.7, 0, 0)), False)
sketch6.addGeometry(Part.Circle(Vector(-3.3, -2, 0), Vector(0, 0, 1), 1.1), False)
sketch6.addGeometry(Part.LineSegment(Vector(4.9, 0, 0), Vector(1.7, 0, 0)), False)
sketch6.addGeometry(Part.LineSegment(Vector(1.7, 0, 0), Vector(0.5, -2, 0)), False)
sketch6.addGeometry(Part.LineSegment(Vector(0.5, -2, 0), Vector(1.7, -4.1, 0)), False)
sketch6.addGeometry(Part.LineSegment(Vector(1.7, -4.1, 0), Vector(4.9, -4.1, 0)), False)
sketch6.addGeometry(Part.LineSegment(Vector(4.9, -4.1, 0), Vector(6.1, -2, 0)), False)
sketch6.addGeometry(Part.LineSegment(Vector(6.1, -2, 0), Vector(4.9, 0, 0)), False)
sketch6.addGeometry(Part.Circle(Vector(3.3, -2, 0), Vector(0, 0, 1), 1.1), False)
sketch6.addConstraint(Sketcher.Constraint("Coincident", 0, 2, 1, 1))
sketch6.addConstraint(Sketcher.Constraint("Coincident", 1, 2, 2, 1))
sketch6.addConstraint(Sketcher.Constraint("Coincident", 2, 2, 3, 1))
sketch6.addConstraint(Sketcher.Constraint("Coincident", 3, 2, 4, 1))
sketch6.addConstraint(Sketcher.Constraint("Coincident", 4, 2, 5, 1))
sketch6.addConstraint(Sketcher.Constraint("Coincident", 5, 2, 0, 1))
sketch6.addConstraint(Sketcher.Constraint("Coincident", 7, 2, 8, 1))
sketch6.addConstraint(Sketcher.Constraint("Coincident", 8, 2, 9, 1))
sketch6.addConstraint(Sketcher.Constraint("Coincident", 9, 2, 10, 1))
sketch6.addConstraint(Sketcher.Constraint("Coincident", 10, 2, 11, 1))
sketch6.addConstraint(Sketcher.Constraint("Coincident", 11, 2, 12, 1))
sketch6.addConstraint(Sketcher.Constraint("Coincident", 12, 2, 7, 1))
sketch6.addConstraint(Sketcher.Constraint("Horizontal", 0))
sketch6.addConstraint(Sketcher.Constraint("Horizontal", 3))
sketch6.addConstraint(Sketcher.Constraint("Horizontal", 7))
sketch6.addConstraint(Sketcher.Constraint("Horizontal", 10))
sketch6.addConstraint(Sketcher.Constraint("Equal", 6, 13))
sketch6.addConstraint(Sketcher.Constraint("Symmetric", 5, 2, 7, 2, -1, 1))
sketch6.addConstraint(Sketcher.Constraint("Symmetric", 6, 3, 13, 3, -2))
sketch6.addConstraint(Sketcher.Constraint("Symmetric", 4, 2, 8, 2, -2))
sketch6.addConstraint(Sketcher.Constraint("Symmetric", 3, 2, 9, 2, -2))
sketch6.addConstraint(Sketcher.Constraint("Symmetric", 1, 2, 11, 2, -2))
sketch6.addConstraint(Sketcher.Constraint("Symmetric", 0, 2, 12, 2, -2))
sketch6.addConstraint(Sketcher.Constraint("Parallel", 1, 4))
sketch6.addConstraint(Sketcher.Constraint("Parallel", 2, 5))
sketch6.addConstraint(Sketcher.Constraint("Parallel", 4, 8))
sketch6.addConstraint(Sketcher.Constraint("Parallel", 8, 11))
sketch6.addConstraint(Sketcher.Constraint("Horizontal", 13, 3, 1, 2))
sketch6.addConstraint(Sketcher.Constraint("Horizontal", 1, 2, 4, 2))
sketch6.addConstraint(Sketcher.Constraint("Vertical", 0, 2, 2, 2))
sketch6.addConstraint(Sketcher.Constraint("Diameter", 6, Q("0.09 in")))
sketch6.addConstraint(Sketcher.Constraint("Angle", 1, Q("-120 deg")))
sketch6.addConstraint(Sketcher.Constraint("DistanceX", 6, 3, -1, 1, Q("0.13 in")))
sketch6.addConstraint(Sketcher.Constraint("DistanceY", 6, 3, -1, 1, Q("0.08 in")))
sketch6.addConstraint(Sketcher.Constraint("DistanceX", 0, 2, 0, 1, Q("3.226233 mm")))
sketch6.addConstraint(Sketcher.Constraint("DistanceX", 4, 2, 7, 2, Q("2.204591 mm")))
pocket2 = body.newObject("PartDesign::Pocket", "Pocket001")
pocket2.Profile = sketch6
pocket2.Length = Q("0.065 in")
doc.recompute()

boolean4 = body2.newObject("PartDesign::Boolean", "Boolean003")
boolean4.Type = "Cut"
boolean4.addObjects([body5])

# Sketch on YZ plane
sketch7 = body2.newObject("Sketcher::SketchObject", "Sketch006")
sketch7.AttachmentSupport = (doc.getObject("YZ_Plane001"), [""])
sketch7.MapMode = "FlatFace"
sketch7.addGeometry(Part.ArcOfCircle(Part.Circle(Vector(-49.53, 10.16, 0), Vector(0, 0, 1), 14.22), math.radians(-90), math.radians(-46)), False)
sketch7.addGeometry(Part.LineSegment(Vector(-39.58, 0, 0), Vector(-39.37, 0, 0)), False)
sketch7.addGeometry(Part.LineSegment(Vector(-39.37, 0, 0), Vector(-39.37, 0.21, 0)), False)
sketch7.addGeometry(Part.ArcOfCircle(Part.Circle(Vector(-49.53, 10.16, 0), Vector(0, 0, 1), 14.22), math.radians(-44), math.radians(0)), False)
sketch7.addGeometry(Part.ArcOfCircle(Part.Circle(Vector(-49.53, 10.16, 0), Vector(0, 0, 1), 14.22), math.radians(0), math.radians(224)), False)
sketch7.addGeometry(Part.LineSegment(Vector(-59.69, 0.21, 0), Vector(-59.69, 0, 0)), False)
sketch7.addGeometry(Part.LineSegment(Vector(-59.69, 0, 0), Vector(-59.48, 0, 0)), False)
sketch7.addGeometry(Part.ArcOfCircle(Part.Circle(Vector(-49.53, 10.16, 0), Vector(0, 0, 1), 14.22), math.radians(-134), math.radians(-90)), False)
sketch7.addGeometry(Part.ArcOfCircle(Part.Circle(Vector(-49.53, 10.16, 0), Vector(0, 0, 1), 10.16), math.radians(0), math.radians(270)), False)
sketch7.addGeometry(Part.ArcOfCircle(Part.Circle(Vector(-49.53, 10.16, 0), Vector(0, 0, 1), 10.16), math.radians(-90), math.radians(0)), False)
sketch7.addConstraint(Sketcher.Constraint("Coincident", 0, 2, 1, 1))
sketch7.addConstraint(Sketcher.Constraint("Coincident", 1, 2, 2, 1))
sketch7.addConstraint(Sketcher.Constraint("Coincident", 2, 2, 3, 1))
sketch7.addConstraint(Sketcher.Constraint("Tangent", 3, 2, 4, 1))
sketch7.addConstraint(Sketcher.Constraint("Coincident", 4, 2, 5, 1))
sketch7.addConstraint(Sketcher.Constraint("Coincident", 5, 2, 6, 1))
sketch7.addConstraint(Sketcher.Constraint("Coincident", 6, 2, 7, 1))
sketch7.addConstraint(Sketcher.Constraint("Tangent", 7, 2, 0, 1))
sketch7.addConstraint(Sketcher.Constraint("Tangent", 8, 1, 9, 2))
sketch7.addConstraint(Sketcher.Constraint("Coincident", 9, 1, 8, 2))
sketch7.addConstraint(Sketcher.Constraint("Horizontal", 1))
sketch7.addConstraint(Sketcher.Constraint("Vertical", 2))
sketch7.addConstraint(Sketcher.Constraint("Vertical", 5))
sketch7.addConstraint(Sketcher.Constraint("Horizontal", 6))
sketch7.addConstraint(Sketcher.Constraint("Coincident", 3, 3, 0, 3))
sketch7.addConstraint(Sketcher.Constraint("Coincident", 8, 3, 0, 3))
sketch7.addConstraint(Sketcher.Constraint("Equal", 0, 3))
sketch7.addConstraint(Sketcher.Constraint("Equal", 3, 4))
sketch7.addConstraint(Sketcher.Constraint("Equal", 4, 7))
sketch7.addConstraint(Sketcher.Constraint("PointOnObject", 0, 2, -1))
sketch7.addConstraint(Sketcher.Constraint("PointOnObject", 5, 2, -1))
sketch7.addConstraint(Sketcher.Constraint("PointOnObject", 9, 1, -1))
sketch7.addConstraint(Sketcher.Constraint("Horizontal", 9, 3, 3, 2))
sketch7.addConstraint(Sketcher.Constraint("Horizontal", 2, 2, 4, 2))
sketch7.addConstraint(Sketcher.Constraint("Horizontal", 3, 2, 8, 1))
sketch7.addConstraint(Sketcher.Constraint("Vertical", 9, 3, 7, 2))
sketch7.addConstraint(Sketcher.Constraint("Vertical", 2, 2, 8, 1))
sketch7.addConstraint(Sketcher.Constraint("Vertical", 7, 2, 9, 1))
sketch7.addConstraint(Sketcher.Constraint("Radius", 8, Q("0.4 in")))
sketch7.addConstraint(Sketcher.Constraint("Radius", 0, Q("0.56 in")))
sketch7.addConstraint(Sketcher.Constraint("DistanceX", 0, 3, -1, 1, Q("1.95 in")))
pad5 = body2.newObject("PartDesign::Pad", "Pad004")
pad5.Profile = sketch7
pad5.Length = Q("1.5 in")
pad5.Midplane = True
doc.recompute()

chamfer = body2.newObject("PartDesign::Chamfer", "Chamfer")
chamfer.Base = (pad5, edges_at(pad5, [(-19.05, -54.906, 23.329), (19.05, -54.906, 23.329)]))
chamfer.Size = Q("0.05 in")

doc.recompute()
